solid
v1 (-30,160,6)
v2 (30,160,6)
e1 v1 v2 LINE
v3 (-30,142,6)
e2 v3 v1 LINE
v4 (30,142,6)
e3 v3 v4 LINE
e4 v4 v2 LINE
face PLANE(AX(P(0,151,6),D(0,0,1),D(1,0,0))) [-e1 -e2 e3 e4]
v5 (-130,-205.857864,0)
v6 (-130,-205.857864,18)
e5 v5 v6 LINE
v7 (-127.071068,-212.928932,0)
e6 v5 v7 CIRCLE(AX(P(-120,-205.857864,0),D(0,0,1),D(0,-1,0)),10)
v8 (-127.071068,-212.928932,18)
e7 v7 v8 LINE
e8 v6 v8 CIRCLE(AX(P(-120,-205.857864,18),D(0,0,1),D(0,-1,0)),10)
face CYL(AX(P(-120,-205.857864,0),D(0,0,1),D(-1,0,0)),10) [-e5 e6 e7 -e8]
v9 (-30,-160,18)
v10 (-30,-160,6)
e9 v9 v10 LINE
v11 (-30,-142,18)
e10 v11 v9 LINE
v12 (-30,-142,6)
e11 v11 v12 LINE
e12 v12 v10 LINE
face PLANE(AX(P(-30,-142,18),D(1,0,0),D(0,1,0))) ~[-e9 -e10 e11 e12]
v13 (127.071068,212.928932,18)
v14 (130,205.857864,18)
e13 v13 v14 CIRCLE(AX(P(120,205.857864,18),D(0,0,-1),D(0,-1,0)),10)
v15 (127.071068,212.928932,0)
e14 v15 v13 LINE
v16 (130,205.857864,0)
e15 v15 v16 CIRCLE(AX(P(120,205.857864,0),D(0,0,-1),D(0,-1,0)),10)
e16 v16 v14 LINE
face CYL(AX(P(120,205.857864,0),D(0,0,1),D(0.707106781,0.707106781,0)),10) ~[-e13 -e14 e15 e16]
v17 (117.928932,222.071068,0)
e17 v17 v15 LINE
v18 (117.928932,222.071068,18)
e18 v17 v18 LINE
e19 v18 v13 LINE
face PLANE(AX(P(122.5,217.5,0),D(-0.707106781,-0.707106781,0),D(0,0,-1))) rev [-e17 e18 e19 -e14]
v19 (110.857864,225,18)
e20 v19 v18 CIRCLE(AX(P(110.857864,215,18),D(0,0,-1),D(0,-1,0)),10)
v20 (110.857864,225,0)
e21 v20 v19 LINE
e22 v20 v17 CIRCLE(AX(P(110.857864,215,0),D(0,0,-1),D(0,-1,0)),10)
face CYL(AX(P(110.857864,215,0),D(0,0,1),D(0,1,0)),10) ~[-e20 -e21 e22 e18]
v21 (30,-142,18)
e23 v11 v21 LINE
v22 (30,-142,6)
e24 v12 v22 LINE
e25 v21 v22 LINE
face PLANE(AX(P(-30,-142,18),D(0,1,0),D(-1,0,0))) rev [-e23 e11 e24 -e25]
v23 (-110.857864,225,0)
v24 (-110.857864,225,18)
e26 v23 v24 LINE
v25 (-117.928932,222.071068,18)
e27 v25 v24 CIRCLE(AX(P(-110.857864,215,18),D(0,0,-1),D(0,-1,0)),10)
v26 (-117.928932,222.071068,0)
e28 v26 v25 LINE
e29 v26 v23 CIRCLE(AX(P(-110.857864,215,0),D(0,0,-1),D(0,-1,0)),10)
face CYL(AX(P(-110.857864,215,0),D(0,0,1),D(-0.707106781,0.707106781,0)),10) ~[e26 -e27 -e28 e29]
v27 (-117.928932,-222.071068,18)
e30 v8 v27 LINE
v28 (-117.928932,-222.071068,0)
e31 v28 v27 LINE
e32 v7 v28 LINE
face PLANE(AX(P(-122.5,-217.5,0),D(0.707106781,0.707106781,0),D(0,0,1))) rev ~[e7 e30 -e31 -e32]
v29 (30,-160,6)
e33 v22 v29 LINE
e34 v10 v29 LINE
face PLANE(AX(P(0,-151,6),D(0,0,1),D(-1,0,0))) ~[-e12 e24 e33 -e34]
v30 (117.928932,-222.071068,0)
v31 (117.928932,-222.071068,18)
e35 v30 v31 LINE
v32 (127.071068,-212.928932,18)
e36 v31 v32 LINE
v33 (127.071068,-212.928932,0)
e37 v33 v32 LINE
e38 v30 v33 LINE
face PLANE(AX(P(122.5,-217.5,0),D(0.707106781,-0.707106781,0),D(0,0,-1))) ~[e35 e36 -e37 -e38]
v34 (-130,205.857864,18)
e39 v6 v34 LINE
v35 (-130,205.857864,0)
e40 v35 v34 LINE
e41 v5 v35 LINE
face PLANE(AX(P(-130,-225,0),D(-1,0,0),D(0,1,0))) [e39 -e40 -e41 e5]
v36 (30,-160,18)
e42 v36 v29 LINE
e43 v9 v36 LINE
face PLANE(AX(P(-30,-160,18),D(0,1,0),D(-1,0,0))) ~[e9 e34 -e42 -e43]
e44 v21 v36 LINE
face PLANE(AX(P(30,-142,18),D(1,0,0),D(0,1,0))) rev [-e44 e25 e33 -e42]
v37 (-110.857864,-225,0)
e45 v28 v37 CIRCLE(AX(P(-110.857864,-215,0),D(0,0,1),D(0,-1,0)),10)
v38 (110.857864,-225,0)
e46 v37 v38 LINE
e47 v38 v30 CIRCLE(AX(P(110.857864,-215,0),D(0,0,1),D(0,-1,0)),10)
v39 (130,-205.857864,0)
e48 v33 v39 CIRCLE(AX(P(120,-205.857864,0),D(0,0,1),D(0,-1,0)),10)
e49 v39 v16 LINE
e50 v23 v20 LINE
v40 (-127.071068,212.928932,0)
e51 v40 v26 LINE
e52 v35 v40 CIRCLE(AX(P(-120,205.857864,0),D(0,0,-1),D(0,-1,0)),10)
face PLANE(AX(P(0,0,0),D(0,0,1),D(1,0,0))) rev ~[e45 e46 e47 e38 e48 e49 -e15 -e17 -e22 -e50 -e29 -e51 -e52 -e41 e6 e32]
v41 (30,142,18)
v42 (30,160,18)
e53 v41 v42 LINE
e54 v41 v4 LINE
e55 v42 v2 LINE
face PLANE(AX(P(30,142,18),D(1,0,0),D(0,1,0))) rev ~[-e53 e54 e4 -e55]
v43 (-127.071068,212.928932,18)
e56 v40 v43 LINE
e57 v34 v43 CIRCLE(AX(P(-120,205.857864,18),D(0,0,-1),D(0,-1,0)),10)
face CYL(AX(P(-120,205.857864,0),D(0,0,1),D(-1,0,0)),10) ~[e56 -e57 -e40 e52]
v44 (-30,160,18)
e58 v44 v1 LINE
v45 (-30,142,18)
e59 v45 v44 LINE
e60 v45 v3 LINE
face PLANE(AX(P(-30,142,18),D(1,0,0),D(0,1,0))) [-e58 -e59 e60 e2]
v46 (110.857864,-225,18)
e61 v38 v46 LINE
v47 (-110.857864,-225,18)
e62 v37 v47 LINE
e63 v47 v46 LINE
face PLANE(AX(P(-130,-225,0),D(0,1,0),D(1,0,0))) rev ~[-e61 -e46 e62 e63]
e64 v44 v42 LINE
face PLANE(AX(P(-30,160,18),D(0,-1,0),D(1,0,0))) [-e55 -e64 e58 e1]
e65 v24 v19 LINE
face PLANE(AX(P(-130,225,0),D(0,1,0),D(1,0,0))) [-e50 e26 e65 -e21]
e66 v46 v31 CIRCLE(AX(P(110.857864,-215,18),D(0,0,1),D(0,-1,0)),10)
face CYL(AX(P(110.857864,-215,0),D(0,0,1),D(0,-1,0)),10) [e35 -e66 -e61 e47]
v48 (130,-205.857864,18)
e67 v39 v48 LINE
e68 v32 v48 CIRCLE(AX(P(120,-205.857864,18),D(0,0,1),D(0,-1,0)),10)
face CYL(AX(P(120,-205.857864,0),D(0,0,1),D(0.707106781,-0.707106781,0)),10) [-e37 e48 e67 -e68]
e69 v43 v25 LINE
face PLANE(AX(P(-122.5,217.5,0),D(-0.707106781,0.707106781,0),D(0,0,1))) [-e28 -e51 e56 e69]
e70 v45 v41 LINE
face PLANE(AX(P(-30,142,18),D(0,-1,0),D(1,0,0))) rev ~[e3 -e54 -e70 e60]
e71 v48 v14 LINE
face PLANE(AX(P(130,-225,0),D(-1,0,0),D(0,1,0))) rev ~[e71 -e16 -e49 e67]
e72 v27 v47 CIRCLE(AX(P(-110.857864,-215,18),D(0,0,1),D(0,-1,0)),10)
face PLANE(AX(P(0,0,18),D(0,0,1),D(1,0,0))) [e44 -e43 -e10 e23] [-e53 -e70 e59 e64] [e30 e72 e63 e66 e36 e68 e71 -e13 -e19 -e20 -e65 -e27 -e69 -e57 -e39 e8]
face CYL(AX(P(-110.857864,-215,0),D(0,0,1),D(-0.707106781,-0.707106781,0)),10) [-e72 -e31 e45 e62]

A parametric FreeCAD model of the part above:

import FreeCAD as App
import Part
import Sketcher
from FreeCAD import Vector


def edges_at(feature, points):
    """Names of the edges that pass closest to the given points."""
    edges = feature.Shape.Edges
    near = lambda p: min(range(len(edges)), key=lambda i: edges[i].distToShape(Part.Vertex(*p))[0])
    return sorted({f"Edge{near(p) + 1}" for p in points})

doc = App.newDocument("Part")
body = doc.addObject("PartDesign::Body", "Body")

sketch1 = body.newObject("Sketcher::SketchObject", "Sketch")
sketch1.AttachmentSupport = (doc.getObject("XY_Plane"), [""])
sketch1.MapMode = "FlatFace"
sketch1.addGeometry(Part.LineSegment(Vector(-130, 225, 0), Vector(-130, -225, 0)), False)
sketch1.addGeometry(Part.LineSegment(Vector(-130, -225, 0), Vector(130, -225, 0)), False)
sketch1.addGeometry(Part.LineSegment(Vector(130, -225, 0), Vector(130, 225, 0)), False)
sketch1.addGeometry(Part.LineSegment(Vector(130, 225, 0), Vector(-130, 225, 0)), False)
sketch1.addConstraint(Sketcher.Constraint("Coincident", 0, 2, 1, 1))
sketch1.addConstraint(Sketcher.Constraint("Coincident", 1, 2, 2, 1))
sketch1.addConstraint(Sketcher.Constraint("Coincident", 2, 2, 3, 1))
sketch1.addConstraint(Sketcher.Constraint("Coincident", 3, 2, 0, 1))
sketch1.addConstraint(Sketcher.Constraint("Vertical", 0))
sketch1.addConstraint(Sketcher.Constraint("Horizontal", 1))
sketch1.addConstraint(Sketcher.Constraint("Vertical", 2))
sketch1.addConstraint(Sketcher.Constraint("Horizontal", 3))
sketch1.addConstraint(Sketcher.Constraint("Symmetric", 0, 2, 2, 2, -1, 1))
sketch1.addConstraint(Sketcher.Constraint("DistanceX", 1, 1, 1, 2, 260.0))
sketch1.addConstraint(Sketcher.Constraint("DistanceY", 0, 2, 0, 1, 450.0))
pad1 = body.newObject("PartDesign::Pad", "Pad")
pad1.Profile = sketch1
pad1.Length = 18

sketch2 = body.newObject("Sketcher::SketchObject", "Sketch001")
sketch2.AttachmentSupport = (doc.getObject("XY_Plane"), [""])
sketch2.MapMode = "FlatFace"
sketch2.AttachmentOffset = App.Placement(Vector(0, 0, 18), App.Rotation())
sketch2.addGeometry(Part.LineSegment(Vector(-30, 160, 0), Vector(-30, 142, 0)), False)
sketch2.addGeometry(Part.LineSegment(Vector(-30, 142, 0), Vector(30, 142, 0)), False)
sketch2.addGeometry(Part.LineSegment(Vector(30, 142, 0), Vector(30, 160, 0)), False)
sketch2.addGeometry(Part.LineSegment(Vector(30, 160, 0), Vector(-30, 160, 0)), False)
sketch2.addConstraint(Sketcher.Constraint("Coincident", 0, 2, 1, 1))
sketch2.addConstraint(Sketcher.Constraint("Coincident", 1, 2, 2, 1))
sketch2.addConstraint(Sketcher.Constraint("Coincident", 2, 2, 3, 1))
sketch2.addConstraint(Sketcher.Constraint("Coincident", 3, 2, 0, 1))
sketch2.addConstraint(Sketcher.Constraint("Vertical", 0))
sketch2.addConstraint(Sketcher.Constraint("Horizontal", 1))
sketch2.addConstraint(Sketcher.Constraint("Vertical", 2))
sketch2.addConstraint(Sketcher.Constraint("Horizontal", 3))
sketch2.addConstraint(Sketcher.Constraint("DistanceX", 1, 1, 1, 2, 60.0))
sketch2.addConstraint(Sketcher.Constraint("DistanceY", 0, 2, 0, 1, 18.0))
sketch2.addConstraint(Sketcher.Constraint("DistanceX", 0, 2, -1, 1, 30.0))
sketch2.addConstraint(Sketcher.Constraint("DistanceY", -1, 1, 0, 2, 142.0))
pocket1 = body.newObject("PartDesign::Pocket", "Pocket")
pocket1.Profile = sketch2
pocket1.Length = 12
doc.recompute()

mirrored = body.newObject("PartDesign::Mirrored", "Mirrored")
mirrored.Originals = [pocket1]
mirrored.MirrorPlane = (doc.getObject("XZ_Plane"), [""])
body.Tip = mirrored
doc.recompute()

chamfer = body.newObject("PartDesign::Chamfer", "Chamfer")
chamfer.Base = (mirrored, edges_at(mirrored, [
    (-130, -225, 9),
    (-130, 225, 9),
    (130, 225, 9),
    (130, -225, 9),
]))
chamfer.Size = 15
doc.recompute()

fillet = body.newObject("PartDesign::Fillet", "Fillet")
fillet.Base = (chamfer, edges_at(chamfer, [
    (115, -225, 9),
    (130, -210, 9),
    (-115, -225, 9),
    (-130, -210, 9),
    (-130, 210, 9),
    (-115, 225, 9),
    (115, 225, 9),
    (130, 210, 9),
]))
fillet.Radius = 10

doc.recompute()
